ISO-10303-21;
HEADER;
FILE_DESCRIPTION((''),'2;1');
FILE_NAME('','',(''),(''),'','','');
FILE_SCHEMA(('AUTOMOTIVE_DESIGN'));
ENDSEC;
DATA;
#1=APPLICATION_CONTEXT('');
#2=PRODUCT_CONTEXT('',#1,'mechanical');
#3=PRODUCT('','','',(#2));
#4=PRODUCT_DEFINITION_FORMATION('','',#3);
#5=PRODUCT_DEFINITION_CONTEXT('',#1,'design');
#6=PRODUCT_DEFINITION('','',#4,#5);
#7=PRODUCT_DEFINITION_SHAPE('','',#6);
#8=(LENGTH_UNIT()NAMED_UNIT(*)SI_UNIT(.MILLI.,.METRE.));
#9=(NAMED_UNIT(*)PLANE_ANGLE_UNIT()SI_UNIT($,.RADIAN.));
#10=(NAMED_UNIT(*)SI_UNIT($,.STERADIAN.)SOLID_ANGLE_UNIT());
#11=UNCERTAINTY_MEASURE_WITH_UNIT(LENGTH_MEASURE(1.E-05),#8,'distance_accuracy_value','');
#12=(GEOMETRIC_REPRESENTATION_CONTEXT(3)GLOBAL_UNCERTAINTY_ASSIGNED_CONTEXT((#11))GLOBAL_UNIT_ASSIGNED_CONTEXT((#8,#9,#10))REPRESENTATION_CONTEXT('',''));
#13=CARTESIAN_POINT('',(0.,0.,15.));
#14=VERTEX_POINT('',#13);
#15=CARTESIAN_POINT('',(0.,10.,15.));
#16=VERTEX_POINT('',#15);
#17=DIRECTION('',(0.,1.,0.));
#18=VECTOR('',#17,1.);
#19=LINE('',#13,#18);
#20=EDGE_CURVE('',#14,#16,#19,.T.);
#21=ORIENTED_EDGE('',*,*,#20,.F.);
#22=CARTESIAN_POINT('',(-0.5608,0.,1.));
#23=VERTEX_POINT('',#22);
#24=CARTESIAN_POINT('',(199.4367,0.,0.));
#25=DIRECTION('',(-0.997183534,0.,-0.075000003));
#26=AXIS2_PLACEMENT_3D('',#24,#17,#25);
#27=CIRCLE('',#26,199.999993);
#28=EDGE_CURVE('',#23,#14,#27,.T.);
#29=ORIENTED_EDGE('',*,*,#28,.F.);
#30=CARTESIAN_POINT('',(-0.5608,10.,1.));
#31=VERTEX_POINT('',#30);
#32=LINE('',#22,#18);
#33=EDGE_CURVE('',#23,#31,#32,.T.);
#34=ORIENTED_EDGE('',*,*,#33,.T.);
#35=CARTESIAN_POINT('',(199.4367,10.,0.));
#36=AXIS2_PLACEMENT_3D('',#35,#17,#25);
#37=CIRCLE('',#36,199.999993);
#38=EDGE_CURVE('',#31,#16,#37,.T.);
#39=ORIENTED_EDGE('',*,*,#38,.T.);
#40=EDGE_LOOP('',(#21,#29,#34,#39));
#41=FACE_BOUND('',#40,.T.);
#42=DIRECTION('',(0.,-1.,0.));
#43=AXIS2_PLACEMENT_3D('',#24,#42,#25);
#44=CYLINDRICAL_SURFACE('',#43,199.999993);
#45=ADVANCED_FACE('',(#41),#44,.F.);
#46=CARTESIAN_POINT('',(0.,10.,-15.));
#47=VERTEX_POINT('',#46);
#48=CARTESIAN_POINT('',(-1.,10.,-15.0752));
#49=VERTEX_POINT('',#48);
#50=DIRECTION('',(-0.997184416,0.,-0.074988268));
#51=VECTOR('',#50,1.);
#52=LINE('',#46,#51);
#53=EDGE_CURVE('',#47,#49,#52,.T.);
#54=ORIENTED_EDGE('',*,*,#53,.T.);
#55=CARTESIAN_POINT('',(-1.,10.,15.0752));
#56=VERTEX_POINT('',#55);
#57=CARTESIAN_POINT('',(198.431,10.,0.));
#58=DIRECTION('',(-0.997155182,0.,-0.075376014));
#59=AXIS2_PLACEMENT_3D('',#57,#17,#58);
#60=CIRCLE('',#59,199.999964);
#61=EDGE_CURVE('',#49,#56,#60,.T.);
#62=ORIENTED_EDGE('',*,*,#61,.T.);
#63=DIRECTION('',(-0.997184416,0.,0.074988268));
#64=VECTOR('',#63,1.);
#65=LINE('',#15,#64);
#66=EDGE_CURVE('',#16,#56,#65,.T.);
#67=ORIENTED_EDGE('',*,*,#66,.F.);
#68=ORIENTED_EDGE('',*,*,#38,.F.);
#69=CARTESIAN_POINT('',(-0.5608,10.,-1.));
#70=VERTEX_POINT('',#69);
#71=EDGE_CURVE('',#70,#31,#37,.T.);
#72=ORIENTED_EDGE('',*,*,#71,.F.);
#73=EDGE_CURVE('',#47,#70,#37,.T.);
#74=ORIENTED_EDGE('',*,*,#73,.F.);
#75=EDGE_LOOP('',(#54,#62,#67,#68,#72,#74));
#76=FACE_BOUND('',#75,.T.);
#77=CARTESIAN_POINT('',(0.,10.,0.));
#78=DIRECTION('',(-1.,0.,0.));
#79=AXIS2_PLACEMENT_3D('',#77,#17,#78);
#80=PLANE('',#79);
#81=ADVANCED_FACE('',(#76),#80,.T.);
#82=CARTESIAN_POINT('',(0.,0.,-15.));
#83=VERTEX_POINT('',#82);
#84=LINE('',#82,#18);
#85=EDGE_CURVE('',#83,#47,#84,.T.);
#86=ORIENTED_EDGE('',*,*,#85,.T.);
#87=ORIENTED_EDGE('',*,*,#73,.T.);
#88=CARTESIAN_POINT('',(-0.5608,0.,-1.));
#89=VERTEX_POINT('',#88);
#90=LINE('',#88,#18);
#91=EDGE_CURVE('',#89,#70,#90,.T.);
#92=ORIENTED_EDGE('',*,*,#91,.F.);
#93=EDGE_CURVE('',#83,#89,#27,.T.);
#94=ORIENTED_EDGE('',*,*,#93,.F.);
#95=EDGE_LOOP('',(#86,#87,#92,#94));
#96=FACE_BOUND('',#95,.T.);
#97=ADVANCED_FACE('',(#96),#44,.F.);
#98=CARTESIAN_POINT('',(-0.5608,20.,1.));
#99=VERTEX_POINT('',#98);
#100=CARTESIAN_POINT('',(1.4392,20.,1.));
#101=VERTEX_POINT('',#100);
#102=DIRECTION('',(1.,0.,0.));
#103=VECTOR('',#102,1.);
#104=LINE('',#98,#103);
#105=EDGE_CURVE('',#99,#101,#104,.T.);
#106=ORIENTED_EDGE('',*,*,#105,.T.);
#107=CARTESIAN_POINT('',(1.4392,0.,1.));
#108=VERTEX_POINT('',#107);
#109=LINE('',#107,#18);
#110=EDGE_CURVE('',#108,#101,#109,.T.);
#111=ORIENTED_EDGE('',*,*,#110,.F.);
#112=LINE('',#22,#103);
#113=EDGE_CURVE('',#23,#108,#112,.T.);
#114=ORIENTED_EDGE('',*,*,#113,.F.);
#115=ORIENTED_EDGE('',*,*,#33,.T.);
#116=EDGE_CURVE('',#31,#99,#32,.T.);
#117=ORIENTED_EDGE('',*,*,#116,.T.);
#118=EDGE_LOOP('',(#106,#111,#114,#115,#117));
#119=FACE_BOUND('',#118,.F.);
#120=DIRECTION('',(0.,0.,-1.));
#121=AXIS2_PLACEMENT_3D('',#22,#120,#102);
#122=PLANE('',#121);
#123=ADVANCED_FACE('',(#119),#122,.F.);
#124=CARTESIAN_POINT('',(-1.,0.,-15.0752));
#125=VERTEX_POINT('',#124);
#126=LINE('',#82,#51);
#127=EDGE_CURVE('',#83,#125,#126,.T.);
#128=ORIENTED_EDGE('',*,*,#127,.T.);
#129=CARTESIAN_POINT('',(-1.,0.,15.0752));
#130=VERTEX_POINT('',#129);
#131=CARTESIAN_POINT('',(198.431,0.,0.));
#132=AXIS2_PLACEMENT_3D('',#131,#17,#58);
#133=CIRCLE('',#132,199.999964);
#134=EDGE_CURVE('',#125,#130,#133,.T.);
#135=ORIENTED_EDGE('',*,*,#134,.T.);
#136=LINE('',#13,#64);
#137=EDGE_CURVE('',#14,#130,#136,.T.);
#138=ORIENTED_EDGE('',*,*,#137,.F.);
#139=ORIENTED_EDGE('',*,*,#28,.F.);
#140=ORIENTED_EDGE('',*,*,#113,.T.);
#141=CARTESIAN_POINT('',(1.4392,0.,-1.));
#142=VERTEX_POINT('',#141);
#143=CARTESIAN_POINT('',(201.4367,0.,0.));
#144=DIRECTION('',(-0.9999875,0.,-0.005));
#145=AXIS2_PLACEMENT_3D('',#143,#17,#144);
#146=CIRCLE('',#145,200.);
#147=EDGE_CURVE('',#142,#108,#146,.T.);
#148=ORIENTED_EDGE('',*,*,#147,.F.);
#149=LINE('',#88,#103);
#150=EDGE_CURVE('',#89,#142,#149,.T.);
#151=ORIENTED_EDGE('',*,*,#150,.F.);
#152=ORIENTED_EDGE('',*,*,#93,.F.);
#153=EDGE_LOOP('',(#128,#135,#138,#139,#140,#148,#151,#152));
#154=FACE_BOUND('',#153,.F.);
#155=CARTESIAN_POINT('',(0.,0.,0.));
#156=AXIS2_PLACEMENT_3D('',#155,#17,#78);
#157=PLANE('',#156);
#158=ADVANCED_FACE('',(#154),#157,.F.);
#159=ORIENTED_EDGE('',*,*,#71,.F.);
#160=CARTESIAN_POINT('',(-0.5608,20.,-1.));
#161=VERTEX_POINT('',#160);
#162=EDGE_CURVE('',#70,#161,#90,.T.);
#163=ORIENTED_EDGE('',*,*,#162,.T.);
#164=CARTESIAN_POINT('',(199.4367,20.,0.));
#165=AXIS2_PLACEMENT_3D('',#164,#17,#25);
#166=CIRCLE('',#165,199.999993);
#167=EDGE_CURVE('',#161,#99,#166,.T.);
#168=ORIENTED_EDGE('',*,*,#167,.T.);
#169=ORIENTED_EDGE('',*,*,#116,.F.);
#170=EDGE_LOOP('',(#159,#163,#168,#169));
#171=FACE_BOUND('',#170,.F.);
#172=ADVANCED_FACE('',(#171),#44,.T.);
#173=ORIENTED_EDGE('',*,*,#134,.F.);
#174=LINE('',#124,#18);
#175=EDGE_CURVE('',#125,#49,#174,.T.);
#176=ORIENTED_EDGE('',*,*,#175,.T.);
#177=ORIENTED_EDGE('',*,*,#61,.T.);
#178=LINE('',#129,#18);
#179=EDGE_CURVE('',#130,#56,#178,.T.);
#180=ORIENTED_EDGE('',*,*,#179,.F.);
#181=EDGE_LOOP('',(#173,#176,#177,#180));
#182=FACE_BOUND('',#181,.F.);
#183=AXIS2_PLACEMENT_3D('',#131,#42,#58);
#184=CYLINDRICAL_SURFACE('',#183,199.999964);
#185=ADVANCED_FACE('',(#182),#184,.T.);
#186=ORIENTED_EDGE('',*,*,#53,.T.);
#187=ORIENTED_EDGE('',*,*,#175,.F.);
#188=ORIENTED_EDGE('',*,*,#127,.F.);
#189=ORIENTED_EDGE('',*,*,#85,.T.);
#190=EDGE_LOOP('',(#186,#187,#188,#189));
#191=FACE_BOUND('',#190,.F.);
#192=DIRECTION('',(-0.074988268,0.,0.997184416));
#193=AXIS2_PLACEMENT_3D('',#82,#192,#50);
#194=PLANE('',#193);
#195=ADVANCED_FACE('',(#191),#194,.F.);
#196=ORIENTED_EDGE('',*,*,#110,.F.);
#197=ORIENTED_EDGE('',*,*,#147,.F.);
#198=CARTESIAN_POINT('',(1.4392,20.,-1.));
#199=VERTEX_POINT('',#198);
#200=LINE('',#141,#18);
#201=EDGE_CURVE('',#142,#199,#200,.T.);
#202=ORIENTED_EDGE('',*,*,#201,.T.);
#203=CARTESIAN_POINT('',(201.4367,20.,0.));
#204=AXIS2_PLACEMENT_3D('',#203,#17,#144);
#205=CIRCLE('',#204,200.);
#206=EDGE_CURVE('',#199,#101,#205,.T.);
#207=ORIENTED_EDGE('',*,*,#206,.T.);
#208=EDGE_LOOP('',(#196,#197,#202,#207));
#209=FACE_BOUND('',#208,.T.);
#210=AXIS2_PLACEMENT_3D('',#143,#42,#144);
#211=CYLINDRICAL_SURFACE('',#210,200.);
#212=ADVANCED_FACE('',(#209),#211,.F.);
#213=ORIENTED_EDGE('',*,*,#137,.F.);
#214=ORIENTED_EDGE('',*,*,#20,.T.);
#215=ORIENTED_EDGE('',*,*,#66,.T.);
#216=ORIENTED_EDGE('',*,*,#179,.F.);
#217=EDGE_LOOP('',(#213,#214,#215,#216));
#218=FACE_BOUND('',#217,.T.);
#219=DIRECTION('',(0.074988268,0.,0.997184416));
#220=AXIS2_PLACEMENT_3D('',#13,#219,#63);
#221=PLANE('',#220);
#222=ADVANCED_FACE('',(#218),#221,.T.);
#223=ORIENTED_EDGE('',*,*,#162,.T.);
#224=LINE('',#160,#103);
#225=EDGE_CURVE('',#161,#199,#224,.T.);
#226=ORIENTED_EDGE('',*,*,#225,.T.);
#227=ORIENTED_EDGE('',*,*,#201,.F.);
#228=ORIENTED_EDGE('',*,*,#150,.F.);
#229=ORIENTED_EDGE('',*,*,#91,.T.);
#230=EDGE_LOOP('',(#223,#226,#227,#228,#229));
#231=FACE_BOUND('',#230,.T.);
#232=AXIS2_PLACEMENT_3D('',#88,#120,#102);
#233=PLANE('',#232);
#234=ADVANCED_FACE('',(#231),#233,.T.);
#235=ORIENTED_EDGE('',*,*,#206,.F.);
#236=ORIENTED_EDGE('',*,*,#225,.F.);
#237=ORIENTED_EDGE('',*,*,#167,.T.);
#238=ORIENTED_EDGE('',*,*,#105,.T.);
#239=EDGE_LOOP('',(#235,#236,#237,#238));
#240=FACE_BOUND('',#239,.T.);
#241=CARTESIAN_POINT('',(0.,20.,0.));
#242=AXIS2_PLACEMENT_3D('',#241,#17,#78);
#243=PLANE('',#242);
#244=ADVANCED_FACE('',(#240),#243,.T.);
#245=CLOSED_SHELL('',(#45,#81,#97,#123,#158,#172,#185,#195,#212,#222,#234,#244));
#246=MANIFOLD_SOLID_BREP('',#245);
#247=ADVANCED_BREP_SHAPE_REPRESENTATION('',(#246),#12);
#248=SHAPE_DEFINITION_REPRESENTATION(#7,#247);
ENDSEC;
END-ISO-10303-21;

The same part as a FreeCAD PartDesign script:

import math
import FreeCAD as App
import Part
import Sketcher

V = App.Vector
Q = App.Units.Quantity

doc = App.newDocument("Part")
body = doc.addObject("PartDesign::Body", "Body")

# Sketch on XZ plane
sketch1 = body.newObject("Sketcher::SketchObject", "Sketch")
sketch1.AttachmentSupport = (doc.getObject("XZ_Plane"), [""])
sketch1.MapMode = "FlatFace"
sketch1.addGeometry(Part.LineSegment(V(1.4392, -1, 0), V(-0.5608, -1, 0)), False)
sketch1.addGeometry(Part.ArcOfCircle(Part.Circle(V(199.4367, 0, 0), V(0, 0, 1), 199.999993), math.radians(179.71352), math.radians(180.28648)), False)
sketch1.addGeometry(Part.LineSegment(V(-0.5608, 1, 0), V(1.4392, 1, 0)), False)
sketch1.addGeometry(Part.ArcOfCircle(Part.Circle(V(201.4367, 0, 0), V(0, 0, 1), 200), math.radians(179.71352), math.radians(180.28648)), False)
sketch1.addConstraint(Sketcher.Constraint("Coincident", 0, 2, 1, 2))
sketch1.addConstraint(Sketcher.Constraint("Coincident", 1, 1, 2, 1))
sketch1.addConstraint(Sketcher.Constraint("Coincident", 2, 2, 3, 1))
sketch1.addConstraint(Sketcher.Constraint("Coincident", 3, 2, 0, 1))
sketch1.addConstraint(Sketcher.Constraint("Horizontal", 0))
sketch1.addConstraint(Sketcher.Constraint("Horizontal", 2))
sketch1.addConstraint(Sketcher.Constraint("Equal", 1, 3))
sketch1.addConstraint(Sketcher.Constraint("Symmetric", 0, 2, 1, 1, -1))
sketch1.addConstraint(Sketcher.Constraint("PointOnObject", 3, 3, -1))
sketch1.addConstraint(Sketcher.Constraint("Radius", 1, Q("200 mm")))
sketch1.addConstraint(Sketcher.Constraint("DistanceX", 0, 2, 0, 1, Q("2 mm")))
sketch1.addConstraint(Sketcher.Constraint("DistanceY", 0, 2, -1, 1, Q("1 mm")))
sketch1.addConstraint(Sketcher.Constraint("DistanceX", -1, 1, 1, 3, Q("199.4367 mm")))
pad1 = body.newObject("PartDesign::Pad", "Pad")
pad1.Profile = sketch1
pad1.Length = 20
pad1.Reversed = True

# Sketch on XZ plane
sketch2 = body.newObject("Sketcher::SketchObject", "Sketch001")
sketch2.AttachmentSupport = (doc.getObject("XZ_Plane"), [""])
sketch2.MapMode = "FlatFace"
sketch2.addGeometry(Part.ArcOfCircle(Part.Circle(V(199.4367, 0, 0), V(0, 0, 1), 199.999993), math.radians(175.698778), math.radians(184.301222)), False)
sketch2.addGeometry(Part.LineSegment(V(0, -15, 0), V(-1, -15.0752, 0)), False)
sketch2.addGeometry(Part.ArcOfCircle(Part.Circle(V(198.431, 0, 0), V(0, 0, 1), 199.999964), math.radians(175.677173), math.radians(184.322827)), False)
sketch2.addGeometry(Part.LineSegment(V(-1, 15.0752, 0), V(0, 15, 0)), False)
sketch2.addConstraint(Sketcher.Constraint("Coincident", 0, 2, 1, 1))
sketch2.addConstraint(Sketcher.Constraint("Coincident", 1, 2, 2, 2))
sketch2.addConstraint(Sketcher.Constraint("Coincident", 2, 1, 3, 1))
sketch2.addConstraint(Sketcher.Constraint("Coincident", 3, 2, 0, 1))
sketch2.addConstraint(Sketcher.Constraint("Equal", 0, 2))
sketch2.addConstraint(Sketcher.Constraint("Symmetric", 0, 2, 3, 2, -1, 1))
sketch2.addConstraint(Sketcher.Constraint("Symmetric", 1, 2, 2, 1, -1))
sketch2.addConstraint(Sketcher.Constraint("PointOnObject", 0, 3, -1))
sketch2.addConstraint(Sketcher.Constraint("Radius", 0, Q("200 mm")))
sketch2.addConstraint(Sketcher.Constraint("DistanceX", 1, 2, -1, 1, Q("1 mm")))
sketch2.addConstraint(Sketcher.Constraint("DistanceY", 0, 2, 3, 2, Q("30 mm")))
sketch2.addConstraint(Sketcher.Constraint("Angle", 1, Q("-175.6995 deg")))
pad2 = body.newObject("PartDesign::Pad", "Pad001")
pad2.Profile = sketch2
pad2.Length = 10
pad2.Reversed = True

doc.recompute()
